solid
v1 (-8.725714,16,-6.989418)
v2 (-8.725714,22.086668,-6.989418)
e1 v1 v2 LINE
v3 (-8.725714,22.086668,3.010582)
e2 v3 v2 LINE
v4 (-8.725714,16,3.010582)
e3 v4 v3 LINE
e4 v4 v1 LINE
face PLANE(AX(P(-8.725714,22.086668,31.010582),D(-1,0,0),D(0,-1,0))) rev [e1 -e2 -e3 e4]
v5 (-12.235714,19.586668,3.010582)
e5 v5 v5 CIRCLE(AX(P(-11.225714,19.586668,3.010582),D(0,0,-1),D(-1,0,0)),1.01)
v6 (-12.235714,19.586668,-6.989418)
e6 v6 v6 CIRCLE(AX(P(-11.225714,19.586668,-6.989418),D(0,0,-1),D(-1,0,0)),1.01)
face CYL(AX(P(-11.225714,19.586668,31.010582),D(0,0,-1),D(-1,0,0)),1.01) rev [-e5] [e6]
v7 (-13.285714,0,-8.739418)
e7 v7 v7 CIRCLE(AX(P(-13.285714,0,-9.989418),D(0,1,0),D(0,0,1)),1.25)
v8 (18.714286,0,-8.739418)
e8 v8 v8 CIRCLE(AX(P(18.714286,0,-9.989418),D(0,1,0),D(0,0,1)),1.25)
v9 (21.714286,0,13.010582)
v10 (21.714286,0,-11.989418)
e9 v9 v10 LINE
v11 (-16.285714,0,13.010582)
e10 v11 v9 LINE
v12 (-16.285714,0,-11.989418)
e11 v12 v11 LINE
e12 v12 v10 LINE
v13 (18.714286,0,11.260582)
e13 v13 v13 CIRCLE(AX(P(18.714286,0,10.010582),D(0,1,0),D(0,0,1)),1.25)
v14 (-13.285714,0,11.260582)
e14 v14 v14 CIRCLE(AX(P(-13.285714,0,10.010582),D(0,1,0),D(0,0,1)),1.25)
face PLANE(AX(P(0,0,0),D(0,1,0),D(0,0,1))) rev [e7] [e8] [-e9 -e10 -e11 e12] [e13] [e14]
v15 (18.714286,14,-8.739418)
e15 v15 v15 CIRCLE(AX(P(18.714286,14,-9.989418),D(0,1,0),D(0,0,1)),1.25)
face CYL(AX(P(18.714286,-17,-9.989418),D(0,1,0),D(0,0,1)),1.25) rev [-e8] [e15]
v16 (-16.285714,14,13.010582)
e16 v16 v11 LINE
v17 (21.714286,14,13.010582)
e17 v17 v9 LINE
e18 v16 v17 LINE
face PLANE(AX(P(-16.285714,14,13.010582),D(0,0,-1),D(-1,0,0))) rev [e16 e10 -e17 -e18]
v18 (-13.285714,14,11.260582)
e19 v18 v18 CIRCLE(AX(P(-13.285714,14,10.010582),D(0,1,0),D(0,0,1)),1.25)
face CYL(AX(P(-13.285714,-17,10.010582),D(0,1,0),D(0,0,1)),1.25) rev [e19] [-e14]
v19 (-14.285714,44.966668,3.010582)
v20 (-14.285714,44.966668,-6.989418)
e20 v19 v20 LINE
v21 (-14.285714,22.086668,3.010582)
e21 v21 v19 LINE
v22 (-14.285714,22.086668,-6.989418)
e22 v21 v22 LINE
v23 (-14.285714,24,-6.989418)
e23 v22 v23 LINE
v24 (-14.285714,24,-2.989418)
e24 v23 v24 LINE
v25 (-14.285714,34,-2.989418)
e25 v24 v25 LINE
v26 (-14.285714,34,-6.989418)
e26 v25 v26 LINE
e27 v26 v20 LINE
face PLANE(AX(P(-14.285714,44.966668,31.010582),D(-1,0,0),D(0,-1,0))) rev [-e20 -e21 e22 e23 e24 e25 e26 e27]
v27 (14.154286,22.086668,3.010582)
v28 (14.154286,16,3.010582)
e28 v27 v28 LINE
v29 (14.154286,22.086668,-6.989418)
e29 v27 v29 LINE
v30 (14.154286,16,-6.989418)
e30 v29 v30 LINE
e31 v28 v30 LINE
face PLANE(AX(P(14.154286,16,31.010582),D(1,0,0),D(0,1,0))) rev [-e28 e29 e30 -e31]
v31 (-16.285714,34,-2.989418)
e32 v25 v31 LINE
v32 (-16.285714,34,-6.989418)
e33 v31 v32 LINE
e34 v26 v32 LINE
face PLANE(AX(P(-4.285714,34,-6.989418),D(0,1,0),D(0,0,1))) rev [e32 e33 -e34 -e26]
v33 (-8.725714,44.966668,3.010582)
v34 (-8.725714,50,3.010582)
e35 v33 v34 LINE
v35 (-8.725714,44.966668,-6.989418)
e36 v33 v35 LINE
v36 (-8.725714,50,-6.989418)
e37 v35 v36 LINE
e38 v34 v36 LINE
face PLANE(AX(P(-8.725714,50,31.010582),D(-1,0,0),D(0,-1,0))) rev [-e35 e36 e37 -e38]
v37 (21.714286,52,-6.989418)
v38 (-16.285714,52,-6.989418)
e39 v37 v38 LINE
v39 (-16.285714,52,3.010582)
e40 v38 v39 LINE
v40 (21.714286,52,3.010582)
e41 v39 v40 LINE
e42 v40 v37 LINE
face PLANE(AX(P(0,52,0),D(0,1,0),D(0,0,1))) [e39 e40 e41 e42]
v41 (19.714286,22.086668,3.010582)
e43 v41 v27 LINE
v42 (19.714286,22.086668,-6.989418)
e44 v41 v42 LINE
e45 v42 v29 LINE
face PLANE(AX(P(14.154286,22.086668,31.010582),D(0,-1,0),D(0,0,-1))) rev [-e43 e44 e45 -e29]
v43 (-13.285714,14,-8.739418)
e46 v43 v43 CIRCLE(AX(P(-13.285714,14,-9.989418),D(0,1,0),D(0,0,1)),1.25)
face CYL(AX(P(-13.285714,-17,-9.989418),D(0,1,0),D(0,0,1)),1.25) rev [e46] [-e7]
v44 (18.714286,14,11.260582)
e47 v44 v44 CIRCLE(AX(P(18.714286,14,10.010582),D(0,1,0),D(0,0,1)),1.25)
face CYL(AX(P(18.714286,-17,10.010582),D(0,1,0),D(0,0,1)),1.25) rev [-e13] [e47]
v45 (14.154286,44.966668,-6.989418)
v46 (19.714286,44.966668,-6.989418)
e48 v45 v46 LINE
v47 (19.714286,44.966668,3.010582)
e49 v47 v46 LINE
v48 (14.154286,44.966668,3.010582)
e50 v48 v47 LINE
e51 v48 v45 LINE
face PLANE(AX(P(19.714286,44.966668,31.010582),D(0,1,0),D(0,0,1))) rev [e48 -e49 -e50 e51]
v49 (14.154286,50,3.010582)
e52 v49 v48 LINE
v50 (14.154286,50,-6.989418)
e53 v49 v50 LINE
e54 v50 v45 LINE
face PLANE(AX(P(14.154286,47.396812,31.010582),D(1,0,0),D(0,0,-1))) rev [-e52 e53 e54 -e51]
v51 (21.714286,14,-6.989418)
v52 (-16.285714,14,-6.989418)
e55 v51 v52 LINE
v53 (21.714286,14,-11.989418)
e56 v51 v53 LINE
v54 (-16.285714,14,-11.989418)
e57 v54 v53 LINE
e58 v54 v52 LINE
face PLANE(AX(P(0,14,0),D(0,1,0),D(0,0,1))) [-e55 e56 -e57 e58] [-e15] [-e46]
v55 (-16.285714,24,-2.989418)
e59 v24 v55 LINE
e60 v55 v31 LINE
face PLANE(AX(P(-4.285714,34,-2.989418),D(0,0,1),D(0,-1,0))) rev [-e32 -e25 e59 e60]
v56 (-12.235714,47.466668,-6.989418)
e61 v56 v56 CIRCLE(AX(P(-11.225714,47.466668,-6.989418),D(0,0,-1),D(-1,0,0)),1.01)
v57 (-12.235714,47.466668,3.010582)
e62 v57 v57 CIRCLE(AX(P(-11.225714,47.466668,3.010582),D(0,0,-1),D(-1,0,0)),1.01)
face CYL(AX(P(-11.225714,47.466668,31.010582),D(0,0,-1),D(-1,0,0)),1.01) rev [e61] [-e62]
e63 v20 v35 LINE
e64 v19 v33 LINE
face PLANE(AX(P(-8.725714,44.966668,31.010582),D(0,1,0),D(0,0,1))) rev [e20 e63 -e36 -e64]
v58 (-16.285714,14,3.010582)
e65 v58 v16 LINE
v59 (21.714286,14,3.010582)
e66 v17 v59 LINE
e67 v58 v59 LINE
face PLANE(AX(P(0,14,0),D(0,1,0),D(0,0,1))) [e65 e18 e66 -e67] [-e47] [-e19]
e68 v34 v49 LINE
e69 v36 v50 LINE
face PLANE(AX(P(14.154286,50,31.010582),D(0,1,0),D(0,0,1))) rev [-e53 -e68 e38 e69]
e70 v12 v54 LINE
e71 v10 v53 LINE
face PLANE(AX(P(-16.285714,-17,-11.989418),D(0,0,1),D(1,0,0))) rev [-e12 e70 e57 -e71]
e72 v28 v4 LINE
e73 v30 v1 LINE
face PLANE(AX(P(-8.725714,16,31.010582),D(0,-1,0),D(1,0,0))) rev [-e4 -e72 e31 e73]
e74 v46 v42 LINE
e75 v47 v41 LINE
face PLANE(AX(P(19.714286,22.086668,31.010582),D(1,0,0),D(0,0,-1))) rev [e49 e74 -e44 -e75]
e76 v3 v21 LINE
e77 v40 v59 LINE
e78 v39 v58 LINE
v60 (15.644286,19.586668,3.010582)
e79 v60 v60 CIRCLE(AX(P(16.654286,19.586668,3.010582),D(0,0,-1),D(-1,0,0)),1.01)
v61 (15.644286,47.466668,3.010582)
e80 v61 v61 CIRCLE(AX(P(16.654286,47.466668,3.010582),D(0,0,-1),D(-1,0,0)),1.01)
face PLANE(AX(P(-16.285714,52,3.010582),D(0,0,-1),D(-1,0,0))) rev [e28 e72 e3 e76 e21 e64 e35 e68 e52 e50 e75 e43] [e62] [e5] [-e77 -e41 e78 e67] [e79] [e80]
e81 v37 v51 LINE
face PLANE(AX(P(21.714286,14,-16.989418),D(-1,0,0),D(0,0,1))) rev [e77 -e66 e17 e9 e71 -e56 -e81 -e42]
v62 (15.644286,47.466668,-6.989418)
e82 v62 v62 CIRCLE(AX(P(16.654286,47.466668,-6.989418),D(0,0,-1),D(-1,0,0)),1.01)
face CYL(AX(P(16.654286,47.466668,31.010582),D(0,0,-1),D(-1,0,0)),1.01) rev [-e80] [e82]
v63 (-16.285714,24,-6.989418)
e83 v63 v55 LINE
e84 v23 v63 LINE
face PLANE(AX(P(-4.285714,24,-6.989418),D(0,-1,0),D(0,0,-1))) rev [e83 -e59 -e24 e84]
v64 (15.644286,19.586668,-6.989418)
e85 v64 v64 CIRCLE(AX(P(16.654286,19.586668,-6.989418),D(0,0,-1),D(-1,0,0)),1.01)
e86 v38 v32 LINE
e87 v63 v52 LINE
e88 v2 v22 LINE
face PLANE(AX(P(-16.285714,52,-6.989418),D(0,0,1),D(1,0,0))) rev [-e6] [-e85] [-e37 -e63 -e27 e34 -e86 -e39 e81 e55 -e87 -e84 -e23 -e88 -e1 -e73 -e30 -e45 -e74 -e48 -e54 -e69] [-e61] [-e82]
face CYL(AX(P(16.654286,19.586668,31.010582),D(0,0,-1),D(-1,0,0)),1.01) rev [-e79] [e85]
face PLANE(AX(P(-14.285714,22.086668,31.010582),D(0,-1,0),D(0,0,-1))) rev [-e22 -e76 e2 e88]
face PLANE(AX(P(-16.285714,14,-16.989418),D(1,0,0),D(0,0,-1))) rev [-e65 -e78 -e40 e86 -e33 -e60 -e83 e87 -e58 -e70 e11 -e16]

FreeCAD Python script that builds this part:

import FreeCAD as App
import Part
import Sketcher


def add_polygon(sketch, points):
    """Adds a closed chain of lines whose ends are joined by coincident constraints."""
    first, n = sketch.GeometryCount, len(points)
    for a, b in zip(points, points[1:] + points[:1]):
        sketch.addGeometry(Part.LineSegment(App.Vector(*a, 0), App.Vector(*b, 0)), False)
    for i in range(n):
        sketch.addConstraint(Sketcher.Constraint("Coincident", first + i, 2, first + (i + 1) % n, 1))

doc = App.newDocument("Part")
body = doc.addObject("PartDesign::Body", "Body")

sketch1 = body.newObject("Sketcher::SketchObject", "Sketch")
sketch1.AttachmentSupport = (doc.getObject("XZ_Plane"), [""])
sketch1.MapMode = "FlatFace"
add_polygon(sketch1, [(-16, -17), (-16, 13), (22, 13), (22, -17)])
sketch1.addConstraint(Sketcher.Constraint("Vertical", 0))
sketch1.addConstraint(Sketcher.Constraint("Horizontal", 1))
sketch1.addConstraint(Sketcher.Constraint("Vertical", 2))
sketch1.addConstraint(Sketcher.Constraint("Horizontal", 3))
sketch1.addConstraint(Sketcher.Constraint("DistanceX", 1, 1, 1, 2, 38.0))
sketch1.addConstraint(Sketcher.Constraint("DistanceY", 0, 1, 0, 2, 30.0))
sketch1.addConstraint(Sketcher.Constraint("DistanceX", 0, 2, -1, 1, 16.285714))
sketch1.addConstraint(Sketcher.Constraint("DistanceY", -1, 1, 0, 2, 13.010582))
pad1 = body.newObject("PartDesign::Pad", "Pad")
pad1.Profile = sketch1
pad1.Length = 14
pad1.Reversed = True

sketch2 = body.newObject("Sketcher::SketchObject", "Sketch001")
sketch2.AttachmentSupport = (doc.getObject("XZ_Plane"), [""])
sketch2.MapMode = "FlatFace"
sketch2.AttachmentOffset = App.Placement(App.Vector(0, 0, -14), App.Rotation())
add_polygon(sketch2, [(-16, -7), (-16, 3), (22, 3), (22, -7)])
sketch2.addConstraint(Sketcher.Constraint("Vertical", 0))
sketch2.addConstraint(Sketcher.Constraint("Horizontal", 1))
sketch2.addConstraint(Sketcher.Constraint("Vertical", 2))
sketch2.addConstraint(Sketcher.Constraint("Horizontal", 3))
sketch2.addConstraint(Sketcher.Constraint("DistanceX", 1, 1, 1, 2, 38.0))
sketch2.addConstraint(Sketcher.Constraint("DistanceY", 0, 1, 0, 2, 10.0))
sketch2.addConstraint(Sketcher.Constraint("DistanceX", 0, 2, -1, 1, 16.285714))
sketch2.addConstraint(Sketcher.Constraint("DistanceY", -1, 1, 0, 2, 3.010582))
pad2 = body.newObject("PartDesign::Pad", "Pad001")
pad2.Profile = sketch2
pad2.Length = 38
pad2.Reversed = True

sketch3 = body.newObject("Sketcher::SketchObject", "Sketch002")
sketch3.AttachmentSupport = (doc.getObject("XY_Plane"), [""])
sketch3.MapMode = "FlatFace"
sketch3.AttachmentOffset = App.Placement(App.Vector(0, 0, -6.989418), App.Rotation())
sketch3.addGeometry(Part.Circle(App.Vector(16.7, 47.5, 0), App.Vector(0, 0, 1), 1), False)
sketch3.addGeometry(Part.Circle(App.Vector(-11.2, 47.5, 0), App.Vector(0, 0, 1), 1), False)
sketch3.addGeometry(Part.Circle(App.Vector(16.7, 19.6, 0), App.Vector(0, 0, 1), 1), False)
sketch3.addGeometry(Part.Circle(App.Vector(-11.2, 19.6, 0), App.Vector(0, 0, 1), 1), False)
sketch3.addConstraint(Sketcher.Constraint("Equal", 0, 1))
sketch3.addConstraint(Sketcher.Constraint("Equal", 1, 2))
sketch3.addConstraint(Sketcher.Constraint("Equal", 2, 3))
sketch3.addConstraint(Sketcher.Constraint("Horizontal", 0, 3, 1, 3))
sketch3.addConstraint(Sketcher.Constraint("Horizontal", 2, 3, 3, 3))
sketch3.addConstraint(Sketcher.Constraint("Vertical", 0, 3, 2, 3))
sketch3.addConstraint(Sketcher.Constraint("Vertical", 1, 3, 3, 3))
sketch3.addConstraint(Sketcher.Constraint("Diameter", 0, 2.02))
sketch3.addConstraint(Sketcher.Constraint("DistanceX", 1, 3, 0, 3, 27.88))
sketch3.addConstraint(Sketcher.Constraint("DistanceY", 2, 3, 0, 3, 27.88))
sketch3.addConstraint(Sketcher.Constraint("DistanceY", -1, 1, 0, 3, 47.466668))
sketch3.addConstraint(Sketcher.Constraint("DistanceX", -1, 1, 0, 3, 16.654286))
pocket1 = body.newObject("PartDesign::Pocket", "Pocket")
pocket1.Profile = sketch3
pocket1.Length = 38
pocket1.Reversed = True

sketch4 = body.newObject("Sketcher::SketchObject", "Sketch003")
sketch4.AttachmentSupport = (doc.getObject("XY_Plane"), [""])
sketch4.MapMode = "FlatFace"
sketch4.AttachmentOffset = App.Placement(App.Vector(0, 0, -6.989418), App.Rotation())
add_polygon(sketch4, [(14, 50), (14, 45), (20, 45), (20, 22), (14, 22), (14, 16), (-9, 16), (-9, 22), (-14, 22), (-14, 45), (-9, 45), (-9, 50)])
sketch4.addConstraint(Sketcher.Constraint("Vertical", 0))
sketch4.addConstraint(Sketcher.Constraint("Horizontal", 1))
sketch4.addConstraint(Sketcher.Constraint("Vertical", 2))
sketch4.addConstraint(Sketcher.Constraint("Horizontal", 3))
sketch4.addConstraint(Sketcher.Constraint("Vertical", 4))
sketch4.addConstraint(Sketcher.Constraint("Horizontal", 5))
sketch4.addConstraint(Sketcher.Constraint("Vertical", 6))
sketch4.addConstraint(Sketcher.Constraint("Horizontal", 7))
sketch4.addConstraint(Sketcher.Constraint("Vertical", 8))
sketch4.addConstraint(Sketcher.Constraint("Horizontal", 9))
sketch4.addConstraint(Sketcher.Constraint("Vertical", 10))
sketch4.addConstraint(Sketcher.Constraint("Horizontal", 11))
sketch4.addConstraint(Sketcher.Constraint("Horizontal", 3, 2, 6, 2))
sketch4.addConstraint(Sketcher.Constraint("Horizontal", 1, 2, 8, 2))
sketch4.addConstraint(Sketcher.Constraint("Vertical", 0, 2, 3, 2))
sketch4.addConstraint(Sketcher.Constraint("Vertical", 6, 2, 9, 2))
sketch4.addConstraint(Sketcher.Constraint("Equal", 3, 7))
sketch4.addConstraint(Sketcher.Constraint("Equal", 11, 2))
sketch4.addConstraint(Sketcher.Constraint("DistanceY", -1, 1, 4, 2, 16.0))
sketch4.addConstraint(Sketcher.Constraint("DistanceY", -1, 1, 10, 2, 50.0))
sketch4.addConstraint(Sketcher.Constraint("DistanceX", 7, 2, 2, 2, 34.0))
sketch4.addConstraint(Sketcher.Constraint("DistanceX", 1, 1, 1, 2, 5.56))
sketch4.addConstraint(Sketcher.Constraint("DistanceY", 0, 2, 0, 1, 5.033332))
sketch4.addConstraint(Sketcher.Constraint("DistanceX", -1, 1, 0, 2, 14.154286))
pocket2 = body.newObject("PartDesign::Pocket", "Pocket001")
pocket2.Profile = sketch4
pocket2.Length = 38
pocket2.Reversed = True

sketch5 = body.newObject("Sketcher::SketchObject", "Sketch004")
sketch5.AttachmentSupport = (doc.getObject("YZ_Plane"), [""])
sketch5.MapMode = "FlatFace"
sketch5.AttachmentOffset = App.Placement(App.Vector(0, 0, -16.285714), App.Rotation())
add_polygon(sketch5, [(34, -7), (24, -7), (24, -3), (34, -3)])
sketch5.addConstraint(Sketcher.Constraint("Horizontal", 0))
sketch5.addConstraint(Sketcher.Constraint("Vertical", 1))
sketch5.addConstraint(Sketcher.Constraint("Horizontal", 2))
sketch5.addConstraint(Sketcher.Constraint("Vertical", 3))
sketch5.addConstraint(Sketcher.Constraint("DistanceX", 0, 2, 0, 1, 10.0))
sketch5.addConstraint(Sketcher.Constraint("DistanceY", 1, 1, 1, 2, 4.0))
sketch5.addConstraint(Sketcher.Constraint("DistanceX", -1, 1, 0, 2, 24.0))
sketch5.addConstraint(Sketcher.Constraint("DistanceY", 0, 2, -1, 1, 6.989418))
pocket3 = body.newObject("PartDesign::Pocket", "Pocket002")
pocket3.Profile = sketch5
pocket3.Length = 12
pocket3.Reversed = True

sketch6 = body.newObject("Sketcher::SketchObject", "Sketch005")
sketch6.AttachmentSupport = (doc.getObject("XZ_Plane"), [""])
sketch6.MapMode = "FlatFace"
sketch6.AttachmentOffset = App.Placement(App.Vector(0, 0, -14), App.Rotation())
sketch6.addGeometry(Part.Circle(App.Vector(-13.3, -10, 0), App.Vector(0, 0, 1), 1.2), False)
sketch6.addGeometry(Part.Circle(App.Vector(18.7, -10, 0), App.Vector(0, 0, 1), 1.2), False)
sketch6.addGeometry(Part.Circle(App.Vector(18.7, 10, 0), App.Vector(0, 0, 1), 1.2), False)
sketch6.addGeometry(Part.Circle(App.Vector(-13.3, 10, 0), App.Vector(0, 0, 1), 1.2), False)
sketch6.addConstraint(Sketcher.Constraint("Equal", 0, 1))
sketch6.addConstraint(Sketcher.Constraint("Equal", 1, 2))
sketch6.addConstraint(Sketcher.Constraint("Equal", 2, 3))
sketch6.addConstraint(Sketcher.Constraint("Horizontal", 0, 3, 1, 3))
sketch6.addConstraint(Sketcher.Constraint("Horizontal", 2, 3, 3, 3))
sketch6.addConstraint(Sketcher.Constraint("Vertical", 1, 3, 2, 3))
sketch6.addConstraint(Sketcher.Constraint("Vertical", 0, 3, 3, 3))
sketch6.addConstraint(Sketcher.Constraint("Diameter", 0, 2.5))
sketch6.addConstraint(Sketcher.Constraint("DistanceX", 0, 3, 1, 3, 32.0))
sketch6.addConstraint(Sketcher.Constraint("DistanceY", 1, 3, 2, 3, 20.0))
sketch6.addConstraint(Sketcher.Constraint("DistanceX", 0, 3, -1, 1, 13.285714))
sketch6.addConstraint(Sketcher.Constraint("DistanceY", 0, 3, -1, 1, 9.989418))
pocket4 = body.newObject("PartDesign::Pocket", "Pocket003")
pocket4.Profile = sketch6
pocket4.Length = 31
pocket4.Reversed = True

sketch7 = body.newObject("Sketcher::SketchObject", "Sketch006")
sketch7.AttachmentSupport = (doc.getObject("XZ_Plane"), [""])
sketch7.MapMode = "FlatFace"
sketch7.AttachmentOffset = App.Placement(App.Vector(0, 0, -14), App.Rotation())
add_polygon(sketch7, [(-16, -17), (-16, -12), (22, -12), (22, -17)])
sketch7.addConstraint(Sketcher.Constraint("Vertical", 0))
sketch7.addConstraint(Sketcher.Constraint("Horizontal", 1))
sketch7.addConstraint(Sketcher.Constraint("Vertical", 2))
sketch7.addConstraint(Sketcher.Constraint("Horizontal", 3))
sketch7.addConstraint(Sketcher.Constraint("DistanceX", 1, 1, 1, 2, 38.0))
sketch7.addConstraint(Sketcher.Constraint("DistanceY", 0, 1, 0, 2, 5.0))
sketch7.addConstraint(Sketcher.Constraint("DistanceX", 0, 2, -1, 1, 16.285714))
sketch7.addConstraint(Sketcher.Constraint("DistanceY", 0, 2, -1, 1, 11.989418))
pocket5 = body.newObject("PartDesign::Pocket", "Pocket004")
pocket5.Profile = sketch7
pocket5.Length = 31
pocket5.Reversed = True

doc.recompute()
